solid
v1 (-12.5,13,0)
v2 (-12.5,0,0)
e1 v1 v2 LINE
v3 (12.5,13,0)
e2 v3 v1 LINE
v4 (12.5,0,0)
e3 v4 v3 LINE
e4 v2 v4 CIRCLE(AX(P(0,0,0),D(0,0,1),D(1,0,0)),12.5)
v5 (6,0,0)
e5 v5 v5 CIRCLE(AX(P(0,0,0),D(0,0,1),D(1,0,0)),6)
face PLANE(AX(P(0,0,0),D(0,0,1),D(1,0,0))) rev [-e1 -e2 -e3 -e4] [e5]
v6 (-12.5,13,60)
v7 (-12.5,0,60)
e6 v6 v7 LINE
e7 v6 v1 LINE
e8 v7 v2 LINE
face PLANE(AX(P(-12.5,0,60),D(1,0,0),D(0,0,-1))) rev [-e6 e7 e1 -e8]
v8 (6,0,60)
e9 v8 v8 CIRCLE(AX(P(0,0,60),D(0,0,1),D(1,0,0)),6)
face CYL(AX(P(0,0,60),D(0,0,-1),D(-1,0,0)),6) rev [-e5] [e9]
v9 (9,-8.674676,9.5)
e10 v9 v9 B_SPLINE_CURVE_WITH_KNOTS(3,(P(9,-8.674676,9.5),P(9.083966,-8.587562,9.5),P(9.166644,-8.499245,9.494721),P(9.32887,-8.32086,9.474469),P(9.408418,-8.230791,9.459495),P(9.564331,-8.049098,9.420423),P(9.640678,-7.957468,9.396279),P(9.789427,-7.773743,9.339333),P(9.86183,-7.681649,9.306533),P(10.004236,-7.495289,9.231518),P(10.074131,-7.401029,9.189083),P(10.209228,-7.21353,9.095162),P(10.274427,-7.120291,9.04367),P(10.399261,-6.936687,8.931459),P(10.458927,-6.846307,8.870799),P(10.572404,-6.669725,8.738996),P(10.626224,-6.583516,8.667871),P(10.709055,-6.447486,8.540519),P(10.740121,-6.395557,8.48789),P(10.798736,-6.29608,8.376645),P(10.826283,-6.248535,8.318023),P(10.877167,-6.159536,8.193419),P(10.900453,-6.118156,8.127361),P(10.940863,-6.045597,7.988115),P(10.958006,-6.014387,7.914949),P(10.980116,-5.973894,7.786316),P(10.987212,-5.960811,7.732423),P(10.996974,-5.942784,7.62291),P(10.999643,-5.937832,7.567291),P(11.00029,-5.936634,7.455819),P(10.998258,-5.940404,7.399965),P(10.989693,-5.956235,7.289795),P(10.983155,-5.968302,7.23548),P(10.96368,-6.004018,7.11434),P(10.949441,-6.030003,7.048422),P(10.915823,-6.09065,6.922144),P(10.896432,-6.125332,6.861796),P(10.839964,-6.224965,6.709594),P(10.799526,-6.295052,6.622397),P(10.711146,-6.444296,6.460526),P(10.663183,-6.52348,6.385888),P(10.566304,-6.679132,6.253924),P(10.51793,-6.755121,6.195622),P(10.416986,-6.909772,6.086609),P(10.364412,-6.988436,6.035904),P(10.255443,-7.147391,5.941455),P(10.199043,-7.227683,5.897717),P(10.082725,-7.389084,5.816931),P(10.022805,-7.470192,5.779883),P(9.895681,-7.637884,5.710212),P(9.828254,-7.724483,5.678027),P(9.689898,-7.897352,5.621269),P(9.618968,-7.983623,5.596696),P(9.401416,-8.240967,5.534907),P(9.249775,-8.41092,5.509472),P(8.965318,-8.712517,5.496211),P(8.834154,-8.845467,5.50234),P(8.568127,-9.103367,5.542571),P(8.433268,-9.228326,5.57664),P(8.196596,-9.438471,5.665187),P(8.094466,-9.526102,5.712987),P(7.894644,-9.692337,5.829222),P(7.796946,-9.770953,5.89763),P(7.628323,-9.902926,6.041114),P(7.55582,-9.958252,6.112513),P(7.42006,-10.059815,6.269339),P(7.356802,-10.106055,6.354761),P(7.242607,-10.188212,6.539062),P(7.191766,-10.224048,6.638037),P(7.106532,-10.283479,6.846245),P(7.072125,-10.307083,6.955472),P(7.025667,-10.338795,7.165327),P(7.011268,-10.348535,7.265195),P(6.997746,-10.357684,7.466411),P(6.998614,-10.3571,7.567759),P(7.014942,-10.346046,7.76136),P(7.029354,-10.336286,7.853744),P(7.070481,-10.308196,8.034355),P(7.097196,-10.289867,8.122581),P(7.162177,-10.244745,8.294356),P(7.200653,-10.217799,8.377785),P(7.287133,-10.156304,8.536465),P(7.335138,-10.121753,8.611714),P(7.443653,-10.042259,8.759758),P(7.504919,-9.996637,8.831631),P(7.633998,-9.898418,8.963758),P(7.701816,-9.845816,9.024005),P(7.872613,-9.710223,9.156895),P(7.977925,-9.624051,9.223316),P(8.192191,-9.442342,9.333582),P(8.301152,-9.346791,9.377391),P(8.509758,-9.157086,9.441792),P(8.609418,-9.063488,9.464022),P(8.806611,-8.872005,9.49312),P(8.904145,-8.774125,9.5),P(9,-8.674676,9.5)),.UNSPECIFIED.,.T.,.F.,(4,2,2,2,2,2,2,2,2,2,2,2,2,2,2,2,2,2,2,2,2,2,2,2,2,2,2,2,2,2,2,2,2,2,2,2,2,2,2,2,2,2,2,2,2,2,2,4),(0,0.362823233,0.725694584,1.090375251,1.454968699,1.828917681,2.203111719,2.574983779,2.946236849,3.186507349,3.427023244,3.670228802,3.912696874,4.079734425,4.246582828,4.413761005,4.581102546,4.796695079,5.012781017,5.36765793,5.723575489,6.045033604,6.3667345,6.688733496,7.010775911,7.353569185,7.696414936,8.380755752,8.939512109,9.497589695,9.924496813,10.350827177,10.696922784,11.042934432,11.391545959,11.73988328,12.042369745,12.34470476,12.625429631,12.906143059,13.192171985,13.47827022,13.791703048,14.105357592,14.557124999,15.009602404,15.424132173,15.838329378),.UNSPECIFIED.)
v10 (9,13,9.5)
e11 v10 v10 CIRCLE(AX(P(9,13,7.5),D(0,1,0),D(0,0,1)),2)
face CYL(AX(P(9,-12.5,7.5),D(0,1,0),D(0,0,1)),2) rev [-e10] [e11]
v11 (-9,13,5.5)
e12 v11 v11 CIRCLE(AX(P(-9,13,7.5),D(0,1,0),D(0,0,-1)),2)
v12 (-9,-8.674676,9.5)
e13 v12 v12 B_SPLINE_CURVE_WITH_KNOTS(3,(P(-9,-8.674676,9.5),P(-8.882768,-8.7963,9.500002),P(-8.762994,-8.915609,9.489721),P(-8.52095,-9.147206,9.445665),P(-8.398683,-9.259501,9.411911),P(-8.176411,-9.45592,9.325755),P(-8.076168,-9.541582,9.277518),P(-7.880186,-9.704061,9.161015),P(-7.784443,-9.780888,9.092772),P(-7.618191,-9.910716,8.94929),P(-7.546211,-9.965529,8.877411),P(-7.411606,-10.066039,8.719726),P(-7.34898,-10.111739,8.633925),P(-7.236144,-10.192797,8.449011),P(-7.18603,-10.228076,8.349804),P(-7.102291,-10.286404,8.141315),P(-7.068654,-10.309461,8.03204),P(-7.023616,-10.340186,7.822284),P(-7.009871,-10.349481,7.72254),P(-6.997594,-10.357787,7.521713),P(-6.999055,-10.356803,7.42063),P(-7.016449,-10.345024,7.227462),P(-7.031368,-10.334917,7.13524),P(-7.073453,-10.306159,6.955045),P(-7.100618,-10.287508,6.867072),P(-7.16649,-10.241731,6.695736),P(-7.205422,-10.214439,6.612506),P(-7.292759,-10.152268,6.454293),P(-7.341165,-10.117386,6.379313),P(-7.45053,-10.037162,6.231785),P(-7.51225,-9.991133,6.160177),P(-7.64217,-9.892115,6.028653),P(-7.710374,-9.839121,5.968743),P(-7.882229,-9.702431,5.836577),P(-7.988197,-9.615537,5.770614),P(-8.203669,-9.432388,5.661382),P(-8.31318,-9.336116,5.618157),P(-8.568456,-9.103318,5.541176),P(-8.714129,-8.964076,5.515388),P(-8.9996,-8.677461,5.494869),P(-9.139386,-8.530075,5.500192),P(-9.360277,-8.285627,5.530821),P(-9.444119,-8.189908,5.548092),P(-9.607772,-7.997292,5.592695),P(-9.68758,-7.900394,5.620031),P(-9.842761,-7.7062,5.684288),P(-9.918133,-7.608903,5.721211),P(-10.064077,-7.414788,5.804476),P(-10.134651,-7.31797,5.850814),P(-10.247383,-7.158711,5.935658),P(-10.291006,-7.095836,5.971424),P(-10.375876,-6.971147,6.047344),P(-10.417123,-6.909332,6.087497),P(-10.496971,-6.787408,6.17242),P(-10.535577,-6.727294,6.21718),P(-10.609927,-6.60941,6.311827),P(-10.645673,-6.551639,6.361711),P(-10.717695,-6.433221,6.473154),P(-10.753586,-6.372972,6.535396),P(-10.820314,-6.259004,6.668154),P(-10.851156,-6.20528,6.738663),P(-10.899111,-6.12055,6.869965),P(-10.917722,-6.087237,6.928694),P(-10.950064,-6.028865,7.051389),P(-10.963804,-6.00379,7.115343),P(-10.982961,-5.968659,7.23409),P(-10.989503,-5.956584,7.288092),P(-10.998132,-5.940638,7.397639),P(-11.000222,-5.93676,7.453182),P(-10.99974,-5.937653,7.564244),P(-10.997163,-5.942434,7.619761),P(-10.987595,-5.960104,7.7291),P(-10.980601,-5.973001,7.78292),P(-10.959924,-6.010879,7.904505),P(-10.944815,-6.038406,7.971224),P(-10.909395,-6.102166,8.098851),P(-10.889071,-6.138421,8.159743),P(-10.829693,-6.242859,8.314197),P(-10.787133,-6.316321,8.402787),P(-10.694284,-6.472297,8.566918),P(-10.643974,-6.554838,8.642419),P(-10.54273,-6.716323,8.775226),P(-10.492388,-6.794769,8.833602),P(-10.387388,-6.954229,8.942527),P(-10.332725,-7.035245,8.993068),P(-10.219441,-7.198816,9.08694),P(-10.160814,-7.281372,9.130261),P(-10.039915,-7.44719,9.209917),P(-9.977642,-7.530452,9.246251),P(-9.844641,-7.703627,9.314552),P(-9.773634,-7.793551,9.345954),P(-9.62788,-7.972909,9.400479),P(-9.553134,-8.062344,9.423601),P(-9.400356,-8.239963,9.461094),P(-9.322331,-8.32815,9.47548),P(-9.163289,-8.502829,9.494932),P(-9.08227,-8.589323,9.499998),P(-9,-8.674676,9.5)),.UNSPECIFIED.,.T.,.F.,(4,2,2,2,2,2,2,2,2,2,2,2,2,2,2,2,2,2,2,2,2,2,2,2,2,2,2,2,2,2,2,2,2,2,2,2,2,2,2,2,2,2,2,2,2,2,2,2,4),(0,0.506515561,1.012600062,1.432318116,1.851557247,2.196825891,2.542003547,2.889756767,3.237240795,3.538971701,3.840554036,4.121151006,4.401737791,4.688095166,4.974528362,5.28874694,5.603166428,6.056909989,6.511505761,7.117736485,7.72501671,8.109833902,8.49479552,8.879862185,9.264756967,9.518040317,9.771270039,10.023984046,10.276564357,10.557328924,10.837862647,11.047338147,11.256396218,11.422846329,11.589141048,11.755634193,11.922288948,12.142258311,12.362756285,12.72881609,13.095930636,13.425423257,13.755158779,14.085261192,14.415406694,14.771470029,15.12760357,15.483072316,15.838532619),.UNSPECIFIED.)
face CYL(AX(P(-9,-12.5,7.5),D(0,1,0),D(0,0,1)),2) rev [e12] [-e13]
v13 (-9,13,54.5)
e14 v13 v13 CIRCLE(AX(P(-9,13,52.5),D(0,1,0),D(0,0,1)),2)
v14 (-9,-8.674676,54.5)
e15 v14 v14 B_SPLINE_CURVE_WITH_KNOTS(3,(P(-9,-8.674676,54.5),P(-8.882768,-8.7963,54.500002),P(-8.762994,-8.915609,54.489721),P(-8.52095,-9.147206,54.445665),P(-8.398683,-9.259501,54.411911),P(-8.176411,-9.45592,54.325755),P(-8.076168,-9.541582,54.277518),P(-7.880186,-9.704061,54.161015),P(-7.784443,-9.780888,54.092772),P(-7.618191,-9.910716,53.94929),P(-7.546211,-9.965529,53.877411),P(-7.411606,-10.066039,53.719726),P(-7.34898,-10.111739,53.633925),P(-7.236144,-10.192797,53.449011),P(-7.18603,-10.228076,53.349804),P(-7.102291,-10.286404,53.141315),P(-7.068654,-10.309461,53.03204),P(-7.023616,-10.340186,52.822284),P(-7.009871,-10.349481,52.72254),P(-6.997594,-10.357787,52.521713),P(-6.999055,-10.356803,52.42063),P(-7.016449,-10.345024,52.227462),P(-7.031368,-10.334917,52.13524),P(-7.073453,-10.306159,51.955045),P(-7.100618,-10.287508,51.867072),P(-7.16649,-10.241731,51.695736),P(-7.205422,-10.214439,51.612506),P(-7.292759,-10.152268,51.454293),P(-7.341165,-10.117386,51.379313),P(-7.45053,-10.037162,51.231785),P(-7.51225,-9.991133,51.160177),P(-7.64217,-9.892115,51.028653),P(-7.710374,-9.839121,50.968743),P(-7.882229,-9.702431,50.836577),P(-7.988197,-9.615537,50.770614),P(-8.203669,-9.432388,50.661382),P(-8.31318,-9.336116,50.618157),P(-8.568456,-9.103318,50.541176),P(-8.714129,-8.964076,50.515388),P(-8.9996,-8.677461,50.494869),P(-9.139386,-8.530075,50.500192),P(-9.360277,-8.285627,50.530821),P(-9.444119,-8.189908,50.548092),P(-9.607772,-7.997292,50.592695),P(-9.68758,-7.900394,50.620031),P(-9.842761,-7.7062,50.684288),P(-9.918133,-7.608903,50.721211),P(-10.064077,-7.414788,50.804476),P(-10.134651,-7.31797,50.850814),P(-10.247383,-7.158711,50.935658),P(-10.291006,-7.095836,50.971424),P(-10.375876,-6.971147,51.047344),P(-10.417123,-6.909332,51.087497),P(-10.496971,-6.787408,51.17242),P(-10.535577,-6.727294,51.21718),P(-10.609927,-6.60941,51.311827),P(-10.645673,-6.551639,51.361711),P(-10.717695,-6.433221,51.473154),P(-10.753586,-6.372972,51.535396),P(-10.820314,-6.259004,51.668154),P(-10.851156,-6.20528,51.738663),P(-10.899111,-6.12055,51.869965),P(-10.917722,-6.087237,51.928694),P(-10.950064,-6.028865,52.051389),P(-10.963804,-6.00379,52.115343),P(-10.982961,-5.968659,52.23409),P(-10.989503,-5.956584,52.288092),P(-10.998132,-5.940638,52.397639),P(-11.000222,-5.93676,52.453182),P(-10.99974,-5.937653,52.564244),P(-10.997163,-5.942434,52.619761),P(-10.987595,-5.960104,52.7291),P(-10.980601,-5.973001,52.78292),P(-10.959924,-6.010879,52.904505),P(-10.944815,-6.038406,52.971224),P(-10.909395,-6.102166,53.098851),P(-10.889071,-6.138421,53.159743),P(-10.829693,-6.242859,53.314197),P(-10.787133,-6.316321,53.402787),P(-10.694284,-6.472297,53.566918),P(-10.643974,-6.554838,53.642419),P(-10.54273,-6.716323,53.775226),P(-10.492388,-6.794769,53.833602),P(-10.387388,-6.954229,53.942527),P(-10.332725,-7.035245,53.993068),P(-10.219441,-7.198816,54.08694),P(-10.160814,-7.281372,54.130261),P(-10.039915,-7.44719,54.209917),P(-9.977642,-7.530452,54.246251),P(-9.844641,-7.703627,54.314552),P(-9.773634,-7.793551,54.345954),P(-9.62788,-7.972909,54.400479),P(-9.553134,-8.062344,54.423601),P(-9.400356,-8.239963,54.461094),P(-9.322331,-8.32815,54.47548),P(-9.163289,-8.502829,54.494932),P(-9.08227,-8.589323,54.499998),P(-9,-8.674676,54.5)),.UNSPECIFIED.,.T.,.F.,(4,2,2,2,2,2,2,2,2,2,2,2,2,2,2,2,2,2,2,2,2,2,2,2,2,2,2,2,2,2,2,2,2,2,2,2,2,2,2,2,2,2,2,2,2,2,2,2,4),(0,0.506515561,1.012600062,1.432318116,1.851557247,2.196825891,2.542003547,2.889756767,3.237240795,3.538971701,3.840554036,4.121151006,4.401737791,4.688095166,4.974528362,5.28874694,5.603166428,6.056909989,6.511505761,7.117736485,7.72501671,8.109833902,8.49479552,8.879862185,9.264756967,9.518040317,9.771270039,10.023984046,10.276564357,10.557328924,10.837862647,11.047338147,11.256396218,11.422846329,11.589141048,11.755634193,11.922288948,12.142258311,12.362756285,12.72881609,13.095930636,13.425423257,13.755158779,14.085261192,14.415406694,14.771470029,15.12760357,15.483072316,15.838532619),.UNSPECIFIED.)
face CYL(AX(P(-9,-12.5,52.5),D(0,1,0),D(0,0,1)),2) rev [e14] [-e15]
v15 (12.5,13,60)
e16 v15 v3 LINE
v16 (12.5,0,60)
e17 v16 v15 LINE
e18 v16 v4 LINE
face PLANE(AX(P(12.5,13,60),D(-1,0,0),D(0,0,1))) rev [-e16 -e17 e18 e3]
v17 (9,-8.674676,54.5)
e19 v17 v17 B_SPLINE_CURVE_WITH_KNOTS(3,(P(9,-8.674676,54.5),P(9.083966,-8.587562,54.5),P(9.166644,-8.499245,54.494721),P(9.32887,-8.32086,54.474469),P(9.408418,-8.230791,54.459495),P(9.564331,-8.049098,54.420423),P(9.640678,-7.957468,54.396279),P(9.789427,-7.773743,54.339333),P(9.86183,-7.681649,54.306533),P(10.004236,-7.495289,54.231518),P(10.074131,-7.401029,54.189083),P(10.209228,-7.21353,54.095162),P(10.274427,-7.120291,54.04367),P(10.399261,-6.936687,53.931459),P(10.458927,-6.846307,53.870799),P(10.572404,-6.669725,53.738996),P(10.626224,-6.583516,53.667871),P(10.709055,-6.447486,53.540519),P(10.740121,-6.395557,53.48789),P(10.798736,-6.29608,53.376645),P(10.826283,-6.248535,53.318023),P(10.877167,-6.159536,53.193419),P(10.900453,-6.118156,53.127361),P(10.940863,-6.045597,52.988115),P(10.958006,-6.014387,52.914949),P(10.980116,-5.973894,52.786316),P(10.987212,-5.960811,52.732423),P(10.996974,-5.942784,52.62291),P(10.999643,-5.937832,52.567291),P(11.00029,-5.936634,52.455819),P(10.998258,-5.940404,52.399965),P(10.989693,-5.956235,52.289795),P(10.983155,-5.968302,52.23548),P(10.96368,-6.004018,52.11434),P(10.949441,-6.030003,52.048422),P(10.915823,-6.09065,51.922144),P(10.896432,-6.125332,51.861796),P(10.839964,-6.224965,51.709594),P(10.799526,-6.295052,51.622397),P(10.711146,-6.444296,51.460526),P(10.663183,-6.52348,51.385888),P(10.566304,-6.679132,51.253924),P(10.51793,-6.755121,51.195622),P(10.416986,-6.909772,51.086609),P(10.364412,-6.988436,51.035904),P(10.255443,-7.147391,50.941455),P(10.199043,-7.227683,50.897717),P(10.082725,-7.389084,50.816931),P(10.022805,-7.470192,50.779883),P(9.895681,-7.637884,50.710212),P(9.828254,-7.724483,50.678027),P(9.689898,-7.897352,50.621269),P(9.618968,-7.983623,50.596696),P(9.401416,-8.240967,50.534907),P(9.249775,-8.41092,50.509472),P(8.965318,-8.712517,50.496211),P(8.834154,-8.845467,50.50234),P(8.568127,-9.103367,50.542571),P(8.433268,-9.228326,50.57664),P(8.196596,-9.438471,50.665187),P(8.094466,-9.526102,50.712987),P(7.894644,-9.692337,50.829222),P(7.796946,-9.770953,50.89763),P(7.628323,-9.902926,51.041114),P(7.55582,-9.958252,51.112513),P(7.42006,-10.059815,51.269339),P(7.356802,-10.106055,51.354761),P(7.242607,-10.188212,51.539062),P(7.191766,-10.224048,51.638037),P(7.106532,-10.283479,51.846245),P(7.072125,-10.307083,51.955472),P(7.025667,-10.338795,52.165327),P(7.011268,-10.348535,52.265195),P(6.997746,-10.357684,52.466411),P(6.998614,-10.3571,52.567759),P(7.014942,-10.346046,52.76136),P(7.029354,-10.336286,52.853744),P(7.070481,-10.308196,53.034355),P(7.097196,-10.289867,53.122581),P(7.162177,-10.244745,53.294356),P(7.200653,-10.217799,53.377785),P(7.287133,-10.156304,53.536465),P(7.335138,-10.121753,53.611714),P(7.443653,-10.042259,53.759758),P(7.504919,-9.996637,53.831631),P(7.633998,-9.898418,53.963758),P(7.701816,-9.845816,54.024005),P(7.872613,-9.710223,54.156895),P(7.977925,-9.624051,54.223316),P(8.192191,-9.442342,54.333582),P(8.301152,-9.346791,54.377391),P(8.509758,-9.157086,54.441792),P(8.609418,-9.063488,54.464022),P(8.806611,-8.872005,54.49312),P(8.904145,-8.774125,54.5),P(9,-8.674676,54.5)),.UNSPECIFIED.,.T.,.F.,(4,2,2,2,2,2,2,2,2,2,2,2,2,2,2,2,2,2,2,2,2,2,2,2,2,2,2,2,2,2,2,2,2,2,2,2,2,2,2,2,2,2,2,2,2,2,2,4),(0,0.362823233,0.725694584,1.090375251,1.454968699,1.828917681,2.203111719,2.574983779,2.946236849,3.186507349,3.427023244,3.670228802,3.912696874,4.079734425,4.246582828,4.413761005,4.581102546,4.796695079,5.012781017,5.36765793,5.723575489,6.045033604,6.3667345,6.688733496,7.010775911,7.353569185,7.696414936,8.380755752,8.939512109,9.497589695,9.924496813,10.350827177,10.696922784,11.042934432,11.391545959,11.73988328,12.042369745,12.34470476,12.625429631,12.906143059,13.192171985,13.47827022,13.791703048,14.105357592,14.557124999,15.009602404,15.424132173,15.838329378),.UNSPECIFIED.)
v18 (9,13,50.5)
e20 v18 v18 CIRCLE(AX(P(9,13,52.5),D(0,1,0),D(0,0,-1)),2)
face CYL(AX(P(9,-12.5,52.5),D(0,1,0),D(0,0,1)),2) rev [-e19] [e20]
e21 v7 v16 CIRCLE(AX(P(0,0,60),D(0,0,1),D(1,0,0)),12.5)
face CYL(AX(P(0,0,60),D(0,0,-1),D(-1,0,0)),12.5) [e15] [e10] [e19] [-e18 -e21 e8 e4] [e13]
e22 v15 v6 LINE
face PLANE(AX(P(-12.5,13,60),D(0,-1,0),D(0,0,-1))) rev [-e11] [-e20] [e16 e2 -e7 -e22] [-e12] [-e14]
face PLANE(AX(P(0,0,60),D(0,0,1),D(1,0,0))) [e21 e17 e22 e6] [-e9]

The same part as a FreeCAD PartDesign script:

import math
import FreeCAD as App
import Part
import Sketcher

V = App.Vector
Q = App.Units.Quantity

doc = App.newDocument("Part")
body = doc.addObject("PartDesign::Body", "Body")

# Sketch on XY plane
sketch1 = body.newObject("Sketcher::SketchObject", "Sketch")
sketch1.AttachmentSupport = (doc.getObject("XY_Plane"), [""])
sketch1.MapMode = "FlatFace"
sketch1.addGeometry(Part.LineSegment(V(-12, 13, 0), V(-12, 0, 0)), False)
sketch1.addGeometry(Part.ArcOfCircle(Part.Circle(V(0, 0, 0), V(0, 0, 1), 12), math.radians(180), math.radians(360)), False)
sketch1.addGeometry(Part.LineSegment(V(12, 0, 0), V(12, 13, 0)), False)
sketch1.addGeometry(Part.LineSegment(V(12, 13, 0), V(-12, 13, 0)), False)
sketch1.addGeometry(Part.Circle(V(0, 0, 0), V(0, 0, 1), 6), False)
sketch1.addConstraint(Sketcher.Constraint("Tangent", 0, 2, 1, 1))
sketch1.addConstraint(Sketcher.Constraint("Tangent", 1, 2, 2, 1))
sketch1.addConstraint(Sketcher.Constraint("Coincident", 2, 2, 3, 1))
sketch1.addConstraint(Sketcher.Constraint("Coincident", 3, 2, 0, 1))
sketch1.addConstraint(Sketcher.Constraint("Vertical", 0))
sketch1.addConstraint(Sketcher.Constraint("Vertical", 2))
sketch1.addConstraint(Sketcher.Constraint("Horizontal", 3))
sketch1.addConstraint(Sketcher.Constraint("Coincident", 1, 3, -1, 1))
sketch1.addConstraint(Sketcher.Constraint("Coincident", 4, 3, -1, 1))
sketch1.addConstraint(Sketcher.Constraint("Diameter", 4, Q("12 mm")))
sketch1.addConstraint(Sketcher.Constraint("Radius", 1, Q("12.5 mm")))
sketch1.addConstraint(Sketcher.Constraint("DistanceY", 0, 2, 0, 1, Q("13 mm")))
pad1 = body.newObject("PartDesign::Pad", "Pad")
pad1.Profile = sketch1
pad1.Length = 60

# Sketch on XZ plane
sketch2 = body.newObject("Sketcher::SketchObject", "Sketch001")
sketch2.AttachmentSupport = (doc.getObject("XZ_Plane"), [""])
sketch2.MapMode = "FlatFace"
sketch2.AttachmentOffset = App.Placement(V(0, 0, -13), App.Rotation())
sketch2.addGeometry(Part.Circle(V(-9, 52.5, 0), V(0, 0, 1), 2), False)
sketch2.addGeometry(Part.Circle(V(-9, 7.5, 0), V(0, 0, 1), 2), False)
sketch2.addGeometry(Part.Circle(V(9, 52.5, 0), V(0, 0, 1), 2), False)
sketch2.addGeometry(Part.Circle(V(9, 7.5, 0), V(0, 0, 1), 2), False)
sketch2.addConstraint(Sketcher.Constraint("Equal", 0, 1))
sketch2.addConstraint(Sketcher.Constraint("Equal", 1, 2))
sketch2.addConstraint(Sketcher.Constraint("Equal", 2, 3))
sketch2.addConstraint(Sketcher.Constraint("Symmetric", 0, 3, 2, 3, -2))
sketch2.addConstraint(Sketcher.Constraint("Symmetric", 1, 3, 3, 3, -2))
sketch2.addConstraint(Sketcher.Constraint("Vertical", 0, 3, 1, 3))
sketch2.addConstraint(Sketcher.Constraint("Diameter", 0, Q("4 mm")))
sketch2.addConstraint(Sketcher.Constraint("DistanceX", 0, 3, -1, 1, Q("9 mm")))
sketch2.addConstraint(Sketcher.Constraint("DistanceY", 1, 3, 0, 3, Q("45 mm")))
sketch2.addConstraint(Sketcher.Constraint("DistanceY", -1, 1, 0, 3, Q("52.5 mm")))
pocket1 = body.newObject("PartDesign::Pocket", "Pocket")
pocket1.Profile = sketch2
pocket1.Type = "ThroughAll"
pocket1.Reversed = True

doc.recompute()
